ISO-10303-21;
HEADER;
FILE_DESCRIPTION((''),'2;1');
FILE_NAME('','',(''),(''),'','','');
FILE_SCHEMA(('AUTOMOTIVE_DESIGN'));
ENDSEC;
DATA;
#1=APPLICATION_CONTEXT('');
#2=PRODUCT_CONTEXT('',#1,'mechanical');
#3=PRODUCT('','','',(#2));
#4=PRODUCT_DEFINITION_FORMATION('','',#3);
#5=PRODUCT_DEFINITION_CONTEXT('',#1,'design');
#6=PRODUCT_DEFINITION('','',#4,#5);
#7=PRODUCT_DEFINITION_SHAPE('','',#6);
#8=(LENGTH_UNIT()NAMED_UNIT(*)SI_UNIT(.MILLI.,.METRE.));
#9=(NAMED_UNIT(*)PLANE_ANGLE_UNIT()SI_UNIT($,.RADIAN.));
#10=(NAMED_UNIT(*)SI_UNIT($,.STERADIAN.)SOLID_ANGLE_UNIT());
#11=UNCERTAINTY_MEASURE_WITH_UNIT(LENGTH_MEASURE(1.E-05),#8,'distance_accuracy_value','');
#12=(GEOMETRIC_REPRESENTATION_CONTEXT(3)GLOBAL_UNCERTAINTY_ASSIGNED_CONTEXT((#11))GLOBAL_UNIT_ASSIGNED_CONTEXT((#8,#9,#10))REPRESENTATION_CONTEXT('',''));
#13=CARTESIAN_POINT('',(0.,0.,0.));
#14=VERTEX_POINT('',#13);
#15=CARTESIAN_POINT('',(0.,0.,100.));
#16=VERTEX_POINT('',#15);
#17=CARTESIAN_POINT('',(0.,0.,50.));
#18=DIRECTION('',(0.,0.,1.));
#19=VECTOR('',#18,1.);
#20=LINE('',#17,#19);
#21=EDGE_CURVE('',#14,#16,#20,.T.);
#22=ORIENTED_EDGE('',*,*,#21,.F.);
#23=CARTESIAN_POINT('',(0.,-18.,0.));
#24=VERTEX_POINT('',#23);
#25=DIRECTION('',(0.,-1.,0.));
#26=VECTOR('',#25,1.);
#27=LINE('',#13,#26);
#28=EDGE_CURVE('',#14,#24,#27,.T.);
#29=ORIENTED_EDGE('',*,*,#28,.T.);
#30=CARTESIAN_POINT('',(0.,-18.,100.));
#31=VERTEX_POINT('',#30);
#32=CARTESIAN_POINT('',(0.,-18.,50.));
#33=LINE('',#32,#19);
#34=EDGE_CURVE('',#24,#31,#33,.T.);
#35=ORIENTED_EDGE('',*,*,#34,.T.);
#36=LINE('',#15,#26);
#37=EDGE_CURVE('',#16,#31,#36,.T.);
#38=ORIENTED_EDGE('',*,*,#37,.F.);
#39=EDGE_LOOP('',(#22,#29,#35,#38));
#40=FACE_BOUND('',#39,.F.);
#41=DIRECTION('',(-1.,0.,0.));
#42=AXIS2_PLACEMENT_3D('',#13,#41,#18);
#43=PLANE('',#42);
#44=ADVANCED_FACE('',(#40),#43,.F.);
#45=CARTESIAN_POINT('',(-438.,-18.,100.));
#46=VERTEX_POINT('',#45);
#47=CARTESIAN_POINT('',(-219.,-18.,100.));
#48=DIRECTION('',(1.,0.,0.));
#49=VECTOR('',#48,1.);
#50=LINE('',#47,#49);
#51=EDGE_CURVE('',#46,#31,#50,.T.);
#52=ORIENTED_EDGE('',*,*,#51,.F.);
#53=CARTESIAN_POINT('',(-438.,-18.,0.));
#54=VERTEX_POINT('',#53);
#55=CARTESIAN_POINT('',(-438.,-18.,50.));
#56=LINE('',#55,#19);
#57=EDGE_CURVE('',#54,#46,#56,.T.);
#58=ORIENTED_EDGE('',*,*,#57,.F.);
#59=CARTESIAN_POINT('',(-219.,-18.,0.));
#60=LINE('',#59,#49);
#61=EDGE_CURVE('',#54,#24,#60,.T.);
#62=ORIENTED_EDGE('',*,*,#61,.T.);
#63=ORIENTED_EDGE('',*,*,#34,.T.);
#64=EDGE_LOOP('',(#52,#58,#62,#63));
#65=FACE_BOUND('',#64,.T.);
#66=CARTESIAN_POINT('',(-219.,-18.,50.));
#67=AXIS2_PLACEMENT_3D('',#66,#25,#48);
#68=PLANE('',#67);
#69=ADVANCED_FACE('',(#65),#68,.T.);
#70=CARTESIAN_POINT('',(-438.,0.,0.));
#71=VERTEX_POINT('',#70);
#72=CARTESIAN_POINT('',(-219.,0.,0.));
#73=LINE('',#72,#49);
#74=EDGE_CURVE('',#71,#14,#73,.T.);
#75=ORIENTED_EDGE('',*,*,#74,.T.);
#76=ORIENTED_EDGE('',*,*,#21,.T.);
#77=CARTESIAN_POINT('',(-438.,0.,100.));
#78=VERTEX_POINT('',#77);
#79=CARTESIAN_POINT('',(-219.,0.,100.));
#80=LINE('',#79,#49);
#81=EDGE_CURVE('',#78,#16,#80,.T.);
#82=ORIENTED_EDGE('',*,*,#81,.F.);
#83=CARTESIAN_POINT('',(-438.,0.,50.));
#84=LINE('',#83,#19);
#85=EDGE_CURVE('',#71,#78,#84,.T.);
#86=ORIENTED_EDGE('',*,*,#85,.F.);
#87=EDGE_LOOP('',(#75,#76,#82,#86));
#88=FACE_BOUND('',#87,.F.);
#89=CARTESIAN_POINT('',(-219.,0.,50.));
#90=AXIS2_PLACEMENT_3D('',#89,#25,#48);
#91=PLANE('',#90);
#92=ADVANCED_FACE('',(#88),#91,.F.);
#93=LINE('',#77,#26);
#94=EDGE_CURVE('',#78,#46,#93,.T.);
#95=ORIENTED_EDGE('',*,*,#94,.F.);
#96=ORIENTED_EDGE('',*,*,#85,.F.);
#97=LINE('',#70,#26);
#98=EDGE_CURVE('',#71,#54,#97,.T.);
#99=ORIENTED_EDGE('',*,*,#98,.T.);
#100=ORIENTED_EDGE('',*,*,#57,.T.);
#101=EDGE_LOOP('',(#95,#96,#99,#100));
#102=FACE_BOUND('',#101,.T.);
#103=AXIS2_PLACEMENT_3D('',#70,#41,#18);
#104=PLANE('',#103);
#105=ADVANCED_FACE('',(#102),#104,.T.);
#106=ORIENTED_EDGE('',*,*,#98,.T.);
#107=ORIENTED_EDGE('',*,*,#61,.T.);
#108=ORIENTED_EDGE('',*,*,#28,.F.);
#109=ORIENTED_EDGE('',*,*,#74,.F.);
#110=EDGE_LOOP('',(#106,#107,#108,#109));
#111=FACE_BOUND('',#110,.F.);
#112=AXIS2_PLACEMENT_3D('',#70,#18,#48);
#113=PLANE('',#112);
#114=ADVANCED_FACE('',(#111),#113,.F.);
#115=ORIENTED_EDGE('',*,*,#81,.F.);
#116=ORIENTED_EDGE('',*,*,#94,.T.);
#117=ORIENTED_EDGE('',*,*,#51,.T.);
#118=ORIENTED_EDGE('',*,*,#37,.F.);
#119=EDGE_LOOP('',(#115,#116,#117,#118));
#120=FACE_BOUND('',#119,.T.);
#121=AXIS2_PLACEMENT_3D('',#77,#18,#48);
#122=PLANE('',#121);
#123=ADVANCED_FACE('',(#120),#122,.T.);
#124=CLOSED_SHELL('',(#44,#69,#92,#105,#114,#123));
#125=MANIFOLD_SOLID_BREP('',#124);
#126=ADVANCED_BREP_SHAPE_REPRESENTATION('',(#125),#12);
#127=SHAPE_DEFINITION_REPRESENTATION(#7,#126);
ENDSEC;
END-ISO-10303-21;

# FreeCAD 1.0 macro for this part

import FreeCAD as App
import Part
import Sketcher

V = App.Vector

doc = App.newDocument("Part")
body = doc.addObject("PartDesign::Body", "Body")

# Sketch on XZ plane
sketch1 = doc.addObject("Sketcher::SketchObject", "Sketch")
body.addObject(sketch1)
sketch1.AttachmentSupport = (doc.XZ_Plane, [""])
sketch1.MapMode = "FlatFace"
sketch1.addGeometry(Part.LineSegment(V(-438, 100, 0), V(-438, 0, 0)), False)
sketch1.addGeometry(Part.LineSegment(V(-438, 0, 0), V(0, 0, 0)), False)
sketch1.addGeometry(Part.LineSegment(V(0, 0, 0), V(0, 100, 0)), False)
sketch1.addGeometry(Part.LineSegment(V(0, 100, 0), V(-438, 100, 0)), False)
sketch1.addConstraint(Sketcher.Constraint("Coincident", 0, 2, 1, 1))
sketch1.addConstraint(Sketcher.Constraint("Coincident", 1, 2, 2, 1))
sketch1.addConstraint(Sketcher.Constraint("Coincident", 2, 2, 3, 1))
sketch1.addConstraint(Sketcher.Constraint("Coincident", 3, 2, 0, 1))
sketch1.addConstraint(Sketcher.Constraint("Vertical", 0))
sketch1.addConstraint(Sketcher.Constraint("Horizontal", 1))
sketch1.addConstraint(Sketcher.Constraint("Vertical", 2))
sketch1.addConstraint(Sketcher.Constraint("Horizontal", 3))
sketch1.addConstraint(Sketcher.Constraint("Coincident", 1, 2, -1, 1))
sketch1.addConstraint(Sketcher.Constraint("DistanceX", 1, 1, 1, 2, 438.0))
sketch1.addConstraint(Sketcher.Constraint("DistanceY", 0, 2, 0, 1, 100.0))
pad1 = doc.addObject("PartDesign::Pad", "Pad")
body.addObject(pad1)
pad1.Profile = sketch1
pad1.Length = 18

doc.recompute()
